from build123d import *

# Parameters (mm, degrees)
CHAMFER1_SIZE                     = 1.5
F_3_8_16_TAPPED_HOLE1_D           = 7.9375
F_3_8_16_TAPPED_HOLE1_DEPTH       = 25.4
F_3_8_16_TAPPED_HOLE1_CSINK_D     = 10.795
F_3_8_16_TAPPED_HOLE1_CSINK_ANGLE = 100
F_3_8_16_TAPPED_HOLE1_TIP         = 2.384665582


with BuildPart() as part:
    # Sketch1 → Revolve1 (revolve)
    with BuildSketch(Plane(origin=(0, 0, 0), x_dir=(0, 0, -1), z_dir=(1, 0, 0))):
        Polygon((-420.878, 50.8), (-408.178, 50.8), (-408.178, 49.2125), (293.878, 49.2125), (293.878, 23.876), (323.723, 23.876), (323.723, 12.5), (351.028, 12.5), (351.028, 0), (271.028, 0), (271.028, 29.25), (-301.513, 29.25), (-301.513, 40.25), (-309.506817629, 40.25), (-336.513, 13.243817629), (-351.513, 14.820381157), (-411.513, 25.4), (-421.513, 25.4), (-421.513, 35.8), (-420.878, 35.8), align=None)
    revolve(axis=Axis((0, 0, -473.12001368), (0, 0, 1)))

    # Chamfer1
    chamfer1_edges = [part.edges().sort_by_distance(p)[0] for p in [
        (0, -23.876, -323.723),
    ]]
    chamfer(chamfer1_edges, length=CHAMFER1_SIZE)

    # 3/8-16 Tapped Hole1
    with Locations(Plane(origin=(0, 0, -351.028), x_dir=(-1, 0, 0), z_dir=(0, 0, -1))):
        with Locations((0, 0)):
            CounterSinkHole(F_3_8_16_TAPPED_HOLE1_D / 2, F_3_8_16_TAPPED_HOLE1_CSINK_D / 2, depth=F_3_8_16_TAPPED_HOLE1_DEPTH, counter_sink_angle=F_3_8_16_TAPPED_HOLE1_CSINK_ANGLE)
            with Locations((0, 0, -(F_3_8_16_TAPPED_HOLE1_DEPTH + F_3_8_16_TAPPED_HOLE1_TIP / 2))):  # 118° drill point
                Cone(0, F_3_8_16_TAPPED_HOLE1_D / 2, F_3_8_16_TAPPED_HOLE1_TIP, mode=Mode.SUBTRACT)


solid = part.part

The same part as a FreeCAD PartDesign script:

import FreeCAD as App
import Part
import Sketcher
from FreeCAD import Vector
Q = App.Units.Quantity


def edges_at(feature, points):
    """Names of the edges that pass closest to the given points."""
    edges = feature.Shape.Edges
    near = lambda p: min(range(len(edges)), key=lambda i: edges[i].distToShape(Part.Vertex(*p))[0])
    return sorted({f"Edge{near(p) + 1}" for p in points})

doc = App.newDocument("Part")
body = doc.addObject("PartDesign::Body", "Body")

# Sketch on YZ plane
sketch1 = doc.addObject("Sketcher::SketchObject", "Sketch")
body.addObject(sketch1)
sketch1.AttachmentSupport = (doc.YZ_Plane, [""])
sketch1.MapMode = "FlatFace"
sketch1.addGeometry([
    Part.LineSegment(Vector(50.8, 408.178, 0), Vector(50.8, 420.878, 0)),  # 0
    Part.LineSegment(Vector(50.8, 420.878, 0), Vector(35.8, 420.878, 0)),  # 1
    Part.LineSegment(Vector(35.8, 420.878, 0), Vector(35.8, 421.513, 0)),  # 2
    Part.LineSegment(Vector(35.8, 421.513, 0), Vector(25.4, 421.513, 0)),  # 3
    Part.LineSegment(Vector(25.4, 421.513, 0), Vector(25.4, 411.513, 0)),  # 4
    Part.LineSegment(Vector(25.4, 411.513, 0), Vector(14.820381, 351.513, 0)),  # 5
    Part.LineSegment(Vector(14.820381, 351.513, 0), Vector(13.243818, 336.513, 0)),  # 6
    Part.LineSegment(Vector(13.243818, 336.513, 0), Vector(40.25, 309.506818, 0)),  # 7
    Part.LineSegment(Vector(40.25, 309.506818, 0), Vector(40.25, 301.513, 0)),  # 8
    Part.LineSegment(Vector(40.25, 301.513, 0), Vector(29.25, 301.513, 0)),  # 9
    Part.LineSegment(Vector(29.25, 301.513, 0), Vector(29.25, -271.028, 0)),  # 10
    Part.LineSegment(Vector(29.25, -271.028, 0), Vector(0, -271.028, 0)),  # 11
    Part.LineSegment(Vector(0, -271.028, 0), Vector(0, -351.028, 0)),  # 12
    Part.LineSegment(Vector(0, -351.028, 0), Vector(12.5, -351.028, 0)),  # 13
    Part.LineSegment(Vector(12.5, -351.028, 0), Vector(12.5, -323.723, 0)),  # 14
    Part.LineSegment(Vector(12.5, -323.723, 0), Vector(23.876, -323.723, 0)),  # 15
    Part.LineSegment(Vector(23.876, -323.723, 0), Vector(23.876, -293.878, 0)),  # 16
    Part.LineSegment(Vector(23.876, -293.878, 0), Vector(49.2125, -293.878, 0)),  # 17
    Part.LineSegment(Vector(49.2125, -293.878, 0), Vector(49.2125, 408.178, 0)),  # 18
    Part.LineSegment(Vector(49.2125, 408.178, 0), Vector(50.8, 408.178, 0)),  # 19
], False)
sketch1.addConstraint([
    Sketcher.Constraint("Coincident", 0, 2, 1, 1),
    Sketcher.Constraint("Coincident", 1, 2, 2, 1),
    Sketcher.Constraint("Coincident", 2, 2, 3, 1),
    Sketcher.Constraint("Coincident", 3, 2, 4, 1),
    Sketcher.Constraint("Coincident", 4, 2, 5, 1),
    Sketcher.Constraint("Coincident", 5, 2, 6, 1),
    Sketcher.Constraint("Coincident", 6, 2, 7, 1),
    Sketcher.Constraint("Coincident", 7, 2, 8, 1),
    Sketcher.Constraint("Coincident", 8, 2, 9, 1),
    Sketcher.Constraint("Coincident", 9, 2, 10, 1),
    Sketcher.Constraint("Coincident", 10, 2, 11, 1),
    Sketcher.Constraint("Coincident", 11, 2, 12, 1),
    Sketcher.Constraint("Coincident", 12, 2, 13, 1),
    Sketcher.Constraint("Coincident", 13, 2, 14, 1),
    Sketcher.Constraint("Coincident", 14, 2, 15, 1),
    Sketcher.Constraint("Coincident", 15, 2, 16, 1),
    Sketcher.Constraint("Coincident", 16, 2, 17, 1),
    Sketcher.Constraint("Coincident", 17, 2, 18, 1),
    Sketcher.Constraint("Coincident", 18, 2, 19, 1),
    Sketcher.Constraint("Coincident", 19, 2, 0, 1),
    Sketcher.Constraint("Vertical", 0),
    Sketcher.Constraint("Horizontal", 1),
    Sketcher.Constraint("Vertical", 2),
    Sketcher.Constraint("Horizontal", 3),
    Sketcher.Constraint("Vertical", 4),
    Sketcher.Constraint("Vertical", 8),
    Sketcher.Constraint("Horizontal", 9),
    Sketcher.Constraint("Vertical", 10),
    Sketcher.Constraint("Horizontal", 11),
    Sketcher.Constraint("Vertical", 12),
    Sketcher.Constraint("Horizontal", 13),
    Sketcher.Constraint("Vertical", 14),
    Sketcher.Constraint("Horizontal", 15),
    Sketcher.Constraint("Vertical", 16),
    Sketcher.Constraint("Horizontal", 17),
    Sketcher.Constraint("Vertical", 18),
    Sketcher.Constraint("Horizontal", 19),
    Sketcher.Constraint("PointOnObject", 11, 2, -2),
    Sketcher.Constraint("DistanceY", 0, 1, 0, 2, Q("0.5 in")),
    Sketcher.Constraint("DistanceX", -1, 1, 0, 2, Q("2 in")),
    Sketcher.Constraint("DistanceX", -1, 1, 3, 2, Q("1 in")),
    Sketcher.Constraint("Angle", 5, Q("-100 deg")),
    Sketcher.Constraint("Angle", 6, Q("-96 deg")),
    Sketcher.Constraint("Angle", 7, Q("-45 deg")),
    Sketcher.Constraint("DistanceY", 18, 1, 18, 2, Q("27.64 in")),
    Sketcher.Constraint("DistanceX", 19, 1, 19, 2, Q("0.0625 in")),
    Sketcher.Constraint("DistanceY", 2, 1, 2, 2, Q("0.025 in")),
    Sketcher.Constraint("DistanceY", 14, 1, 14, 2, Q("1.075 in")),
    Sketcher.Constraint("DistanceY", 16, 1, 16, 2, Q("1.175 in")),
    Sketcher.Constraint("DistanceY", -1, 1, 0, 2, Q("16.57 in")),
    Sketcher.Constraint("DistanceX", -1, 1, 15, 2, Q("0.94 in")),
    Sketcher.Constraint("DistanceX", 1, 2, 1, 1, Q("15 mm")),
    Sketcher.Constraint("DistanceX", 9, 2, 9, 1, Q("11 mm")),
    Sketcher.Constraint("DistanceX", 11, 2, 11, 1, Q("29.25 mm")),
    Sketcher.Constraint("DistanceX", 13, 1, 13, 2, Q("12.5 mm")),
    Sketcher.Constraint("DistanceY", 4, 2, 4, 1, Q("10 mm")),
    Sketcher.Constraint("DistanceY", 10, 2, 10, 1, Q("572.541 mm")),
    Sketcher.Constraint("DistanceY", 12, 2, 12, 1, Q("80 mm")),
    Sketcher.Constraint("DistanceY", -1, 1, 5, 2, Q("351.513 mm")),
    Sketcher.Constraint("DistanceY", -1, 1, 6, 2, Q("336.513 mm")),
])
revolution = doc.addObject("PartDesign::Revolution", "Revolution")
body.addObject(revolution)
revolution.Profile = sketch1
revolution.ReferenceAxis = (sketch1, ["V_Axis"])
revolution.Angle = 360
doc.recompute()

chamfer = doc.addObject("PartDesign::Chamfer", "Chamfer")
body.addObject(chamfer)
chamfer.Base = (revolution, edges_at(revolution, [(0, -23.876, -323.723)]))
chamfer.Size = 1.5

# Sketch on XY plane
sketch2 = doc.addObject("Sketcher::SketchObject", "Sketch001")
body.addObject(sketch2)
sketch2.AttachmentSupport = (doc.XY_Plane, [""])
sketch2.MapMode = "FlatFace"
sketch2.AttachmentOffset = App.Placement(Vector(0, 0, -13.82 * 25.4), App.Rotation())
sketch2.addGeometry(Part.Circle(Vector(0, 0, 0), Vector(0, 0, 1), 3.96875), False)
sketch2.addConstraint([
    Sketcher.Constraint("Coincident", 0, 3, -1, 1),
    Sketcher.Constraint("Diameter", 0, Q("0.3125 in")),
])
doc.recompute()
hole = doc.addObject("PartDesign::Hole", "Hole")
body.addObject(hole)
hole.Profile = sketch2
hole.ThreadType = "None"
hole.Diameter = Q("0.3125 in")
hole.DepthType = "Dimension"
hole.Depth = Q("1 in")
hole.DrillPoint = "Angled"
hole.DrillPointAngle = 118
hole.HoleCutType = "Countersink"
hole.HoleCutDiameter = Q("0.425 in")
hole.HoleCutCountersinkAngle = 100
hole.Reversed = True

doc.recompute()
